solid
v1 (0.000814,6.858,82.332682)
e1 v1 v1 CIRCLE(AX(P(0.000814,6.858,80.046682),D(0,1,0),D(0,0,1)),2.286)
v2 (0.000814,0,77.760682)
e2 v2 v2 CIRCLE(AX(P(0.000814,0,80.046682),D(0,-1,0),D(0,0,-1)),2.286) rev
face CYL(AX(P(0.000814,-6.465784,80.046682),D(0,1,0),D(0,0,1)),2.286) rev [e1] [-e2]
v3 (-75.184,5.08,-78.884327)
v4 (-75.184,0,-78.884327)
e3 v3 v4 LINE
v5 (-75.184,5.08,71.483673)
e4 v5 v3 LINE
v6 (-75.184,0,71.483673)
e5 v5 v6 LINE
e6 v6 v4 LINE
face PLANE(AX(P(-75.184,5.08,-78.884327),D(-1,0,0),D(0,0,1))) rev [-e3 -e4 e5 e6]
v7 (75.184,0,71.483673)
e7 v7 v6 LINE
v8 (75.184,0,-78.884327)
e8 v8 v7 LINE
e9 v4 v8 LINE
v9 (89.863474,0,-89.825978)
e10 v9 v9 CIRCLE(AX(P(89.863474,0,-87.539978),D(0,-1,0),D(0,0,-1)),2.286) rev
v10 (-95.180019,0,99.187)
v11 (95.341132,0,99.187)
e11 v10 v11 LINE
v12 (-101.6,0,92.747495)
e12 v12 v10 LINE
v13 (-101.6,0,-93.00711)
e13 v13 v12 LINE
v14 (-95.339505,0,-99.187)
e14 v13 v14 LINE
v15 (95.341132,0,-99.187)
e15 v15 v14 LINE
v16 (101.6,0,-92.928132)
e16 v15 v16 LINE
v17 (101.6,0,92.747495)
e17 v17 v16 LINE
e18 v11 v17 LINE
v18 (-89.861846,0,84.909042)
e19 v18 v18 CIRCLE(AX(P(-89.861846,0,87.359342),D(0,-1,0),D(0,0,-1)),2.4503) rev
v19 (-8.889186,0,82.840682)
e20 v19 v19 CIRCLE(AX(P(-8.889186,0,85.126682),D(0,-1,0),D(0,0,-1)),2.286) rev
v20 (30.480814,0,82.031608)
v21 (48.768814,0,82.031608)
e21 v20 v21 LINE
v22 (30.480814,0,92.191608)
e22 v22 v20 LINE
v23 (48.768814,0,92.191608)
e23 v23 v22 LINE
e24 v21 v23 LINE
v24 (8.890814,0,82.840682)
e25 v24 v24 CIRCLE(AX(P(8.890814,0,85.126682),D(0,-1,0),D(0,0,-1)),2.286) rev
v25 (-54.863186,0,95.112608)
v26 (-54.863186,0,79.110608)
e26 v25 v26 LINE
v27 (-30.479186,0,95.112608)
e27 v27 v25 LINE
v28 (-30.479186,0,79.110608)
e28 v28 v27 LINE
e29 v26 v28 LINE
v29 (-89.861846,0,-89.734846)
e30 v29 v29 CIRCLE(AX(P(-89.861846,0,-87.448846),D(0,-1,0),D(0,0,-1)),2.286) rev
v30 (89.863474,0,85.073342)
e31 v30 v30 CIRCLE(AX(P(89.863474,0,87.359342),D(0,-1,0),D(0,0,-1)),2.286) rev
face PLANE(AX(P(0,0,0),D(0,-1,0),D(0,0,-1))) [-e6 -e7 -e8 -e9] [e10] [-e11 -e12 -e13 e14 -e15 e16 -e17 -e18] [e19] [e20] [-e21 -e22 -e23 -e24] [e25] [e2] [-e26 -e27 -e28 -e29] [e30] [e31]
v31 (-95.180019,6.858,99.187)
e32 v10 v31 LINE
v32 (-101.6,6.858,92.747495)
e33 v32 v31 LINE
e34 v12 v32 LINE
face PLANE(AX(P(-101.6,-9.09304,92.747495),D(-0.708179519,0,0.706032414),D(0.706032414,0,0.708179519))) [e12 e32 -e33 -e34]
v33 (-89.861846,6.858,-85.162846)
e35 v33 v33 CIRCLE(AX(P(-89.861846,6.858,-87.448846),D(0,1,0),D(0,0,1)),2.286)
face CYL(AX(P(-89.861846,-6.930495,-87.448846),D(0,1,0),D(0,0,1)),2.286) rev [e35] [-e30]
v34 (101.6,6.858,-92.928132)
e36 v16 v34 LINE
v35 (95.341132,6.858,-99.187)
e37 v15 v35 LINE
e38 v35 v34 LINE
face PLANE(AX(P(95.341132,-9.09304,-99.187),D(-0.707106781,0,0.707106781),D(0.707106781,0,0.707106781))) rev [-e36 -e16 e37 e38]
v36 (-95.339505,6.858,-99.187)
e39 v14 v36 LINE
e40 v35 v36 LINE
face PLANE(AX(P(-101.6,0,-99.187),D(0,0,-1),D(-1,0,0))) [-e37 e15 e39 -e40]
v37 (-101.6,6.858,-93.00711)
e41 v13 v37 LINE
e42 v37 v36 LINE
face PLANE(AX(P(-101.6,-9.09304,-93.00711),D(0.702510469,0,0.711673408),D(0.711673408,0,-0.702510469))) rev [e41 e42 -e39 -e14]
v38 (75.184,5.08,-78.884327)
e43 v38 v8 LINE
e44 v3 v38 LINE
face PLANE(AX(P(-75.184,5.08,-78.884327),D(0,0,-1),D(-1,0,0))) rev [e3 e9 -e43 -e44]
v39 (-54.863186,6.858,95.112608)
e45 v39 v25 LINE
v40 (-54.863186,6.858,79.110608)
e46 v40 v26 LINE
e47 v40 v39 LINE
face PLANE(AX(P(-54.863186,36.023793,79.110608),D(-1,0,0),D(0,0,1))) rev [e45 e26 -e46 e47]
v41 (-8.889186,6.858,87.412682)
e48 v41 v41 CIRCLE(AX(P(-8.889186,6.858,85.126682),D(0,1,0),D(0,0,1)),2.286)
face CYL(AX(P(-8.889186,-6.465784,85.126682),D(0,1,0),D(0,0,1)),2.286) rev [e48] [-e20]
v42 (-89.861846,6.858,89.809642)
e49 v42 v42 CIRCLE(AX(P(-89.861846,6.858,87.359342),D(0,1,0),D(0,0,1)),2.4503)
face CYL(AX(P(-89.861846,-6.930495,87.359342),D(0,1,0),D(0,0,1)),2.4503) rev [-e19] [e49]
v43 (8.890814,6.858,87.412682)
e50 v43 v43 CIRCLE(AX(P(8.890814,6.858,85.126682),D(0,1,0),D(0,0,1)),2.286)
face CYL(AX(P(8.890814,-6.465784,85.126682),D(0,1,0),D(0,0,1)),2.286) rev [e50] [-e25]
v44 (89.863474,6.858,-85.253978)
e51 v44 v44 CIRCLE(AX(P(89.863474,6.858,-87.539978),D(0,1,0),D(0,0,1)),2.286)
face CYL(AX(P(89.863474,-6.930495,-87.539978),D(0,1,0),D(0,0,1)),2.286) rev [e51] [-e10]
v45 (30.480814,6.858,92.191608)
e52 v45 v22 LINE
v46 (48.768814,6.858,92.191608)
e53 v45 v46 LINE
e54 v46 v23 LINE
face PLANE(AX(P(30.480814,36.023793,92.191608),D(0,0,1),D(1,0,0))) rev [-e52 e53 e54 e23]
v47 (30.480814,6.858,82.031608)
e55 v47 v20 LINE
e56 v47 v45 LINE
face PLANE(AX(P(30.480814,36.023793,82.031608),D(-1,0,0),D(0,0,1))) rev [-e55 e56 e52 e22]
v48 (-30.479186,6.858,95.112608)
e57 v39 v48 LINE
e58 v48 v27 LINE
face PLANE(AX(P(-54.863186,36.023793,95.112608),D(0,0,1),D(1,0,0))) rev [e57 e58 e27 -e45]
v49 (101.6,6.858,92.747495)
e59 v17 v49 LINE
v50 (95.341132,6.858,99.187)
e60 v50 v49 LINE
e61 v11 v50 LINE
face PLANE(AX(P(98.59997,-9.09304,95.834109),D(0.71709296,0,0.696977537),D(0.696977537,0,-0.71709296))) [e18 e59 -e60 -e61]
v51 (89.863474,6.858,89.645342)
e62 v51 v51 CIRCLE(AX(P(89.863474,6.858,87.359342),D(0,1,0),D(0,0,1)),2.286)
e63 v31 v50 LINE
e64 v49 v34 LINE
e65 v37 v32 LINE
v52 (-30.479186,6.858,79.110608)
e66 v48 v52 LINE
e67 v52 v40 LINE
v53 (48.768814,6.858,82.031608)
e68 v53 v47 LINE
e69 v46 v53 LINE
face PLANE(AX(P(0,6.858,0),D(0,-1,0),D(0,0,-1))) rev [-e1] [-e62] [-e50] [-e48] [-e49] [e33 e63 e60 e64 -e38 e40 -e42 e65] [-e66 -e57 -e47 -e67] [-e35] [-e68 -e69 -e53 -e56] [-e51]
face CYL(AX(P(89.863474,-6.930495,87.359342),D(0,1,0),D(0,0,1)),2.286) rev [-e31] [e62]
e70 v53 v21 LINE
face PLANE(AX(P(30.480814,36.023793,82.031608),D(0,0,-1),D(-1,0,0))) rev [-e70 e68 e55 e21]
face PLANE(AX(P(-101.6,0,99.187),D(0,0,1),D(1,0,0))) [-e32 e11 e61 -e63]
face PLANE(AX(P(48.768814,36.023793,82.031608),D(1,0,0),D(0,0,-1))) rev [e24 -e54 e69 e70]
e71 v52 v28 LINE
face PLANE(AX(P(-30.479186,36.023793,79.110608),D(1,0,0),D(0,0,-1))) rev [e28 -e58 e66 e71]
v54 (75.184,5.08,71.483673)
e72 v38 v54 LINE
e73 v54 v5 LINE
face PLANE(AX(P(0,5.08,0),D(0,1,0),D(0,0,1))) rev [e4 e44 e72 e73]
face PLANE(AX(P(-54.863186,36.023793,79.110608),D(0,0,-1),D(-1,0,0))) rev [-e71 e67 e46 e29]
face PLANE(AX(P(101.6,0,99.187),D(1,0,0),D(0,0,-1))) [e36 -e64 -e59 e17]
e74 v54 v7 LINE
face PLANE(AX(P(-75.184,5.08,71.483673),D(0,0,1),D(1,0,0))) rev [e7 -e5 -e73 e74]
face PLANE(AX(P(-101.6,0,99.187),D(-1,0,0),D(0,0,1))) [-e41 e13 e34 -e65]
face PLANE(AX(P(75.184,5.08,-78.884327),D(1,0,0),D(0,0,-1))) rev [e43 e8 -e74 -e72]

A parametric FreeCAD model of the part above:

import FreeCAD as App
import Part
import Sketcher
Q = App.Units.Quantity

doc = App.newDocument("Part")
body = doc.addObject("PartDesign::Body", "Body")

# Sketch on XZ plane
sketch1 = body.newObject("Sketcher::SketchObject", "Sketch")
sketch1.AttachmentSupport = (doc.getObject("XZ_Plane"), [""])
sketch1.MapMode = "FlatFace"
sketch1.addGeometry(Part.LineSegment(App.Vector(-75.184, -75.184, 0), App.Vector(-75.184, 75.184, 0)), False)
sketch1.addGeometry(Part.LineSegment(App.Vector(-75.184, 75.184, 0), App.Vector(75.184, 75.184, 0)), False)
sketch1.addGeometry(Part.LineSegment(App.Vector(75.184, 75.184, 0), App.Vector(75.184, -75.184, 0)), False)
sketch1.addGeometry(Part.LineSegment(App.Vector(75.184, -75.184, 0), App.Vector(-75.184, -75.184, 0)), False)
sketch1.addConstraint(Sketcher.Constraint("Coincident", 0, 2, 1, 1))
sketch1.addConstraint(Sketcher.Constraint("Coincident", 1, 2, 2, 1))
sketch1.addConstraint(Sketcher.Constraint("Coincident", 2, 2, 3, 1))
sketch1.addConstraint(Sketcher.Constraint("Coincident", 3, 2, 0, 1))
sketch1.addConstraint(Sketcher.Constraint("Vertical", 0))
sketch1.addConstraint(Sketcher.Constraint("Horizontal", 1))
sketch1.addConstraint(Sketcher.Constraint("Vertical", 2))
sketch1.addConstraint(Sketcher.Constraint("Horizontal", 3))
sketch1.addConstraint(Sketcher.Constraint("Symmetric", 0, 2, 2, 2, -1, 1))
sketch1.addConstraint(Sketcher.Constraint("Equal", 3, 0))
sketch1.addConstraint(Sketcher.Constraint("DistanceX", 1, 1, 1, 2, Q("5.92 in")))
pad1 = body.newObject("PartDesign::Pad", "Pad")
pad1.Profile = sketch1
pad1.Length = Q("0.27 in")
pad1.Reversed = True

# Sketch on XZ plane
sketch2 = body.newObject("Sketcher::SketchObject", "Sketch001")
sketch2.AttachmentSupport = (doc.getObject("XZ_Plane"), [""])
sketch2.MapMode = "FlatFace"
sketch2.AttachmentOffset = App.Placement(App.Vector(0, 0, -0.27 * 25.4), App.Rotation())
sketch2.addGeometry(Part.LineSegment(App.Vector(-101.6, -99.187, 0), App.Vector(-101.6, 99.187, 0)), False)
sketch2.addGeometry(Part.LineSegment(App.Vector(-101.6, 99.187, 0), App.Vector(101.6, 99.187, 0)), False)
sketch2.addGeometry(Part.LineSegment(App.Vector(101.6, 99.187, 0), App.Vector(101.6, -99.187, 0)), False)
sketch2.addGeometry(Part.LineSegment(App.Vector(101.6, -99.187, 0), App.Vector(-101.6, -99.187, 0)), False)
sketch2.addConstraint(Sketcher.Constraint("Coincident", 0, 2, 1, 1))
sketch2.addConstraint(Sketcher.Constraint("Coincident", 1, 2, 2, 1))
sketch2.addConstraint(Sketcher.Constraint("Coincident", 2, 2, 3, 1))
sketch2.addConstraint(Sketcher.Constraint("Coincident", 3, 2, 0, 1))
sketch2.addConstraint(Sketcher.Constraint("Vertical", 0))
sketch2.addConstraint(Sketcher.Constraint("Horizontal", 1))
sketch2.addConstraint(Sketcher.Constraint("Vertical", 2))
sketch2.addConstraint(Sketcher.Constraint("Horizontal", 3))
sketch2.addConstraint(Sketcher.Constraint("Symmetric", 0, 2, 2, 2, -1, 1))
sketch2.addConstraint(Sketcher.Constraint("DistanceX", 1, 1, 1, 2, Q("8 in")))
sketch2.addConstraint(Sketcher.Constraint("DistanceY", 0, 1, 0, 2, Q("7.81 in")))
pad2 = body.newObject("PartDesign::Pad", "Pad001")
pad2.Profile = sketch2
pad2.Length = Q("0.27 in")

# Sketch on XZ plane
sketch3 = body.newObject("Sketcher::SketchObject", "Sketch002")
sketch3.AttachmentSupport = (doc.getObject("XZ_Plane"), [""])
sketch3.MapMode = "FlatFace"
sketch3.AttachmentOffset = App.Placement(App.Vector(0, 0, -0.27 * 25.4), App.Rotation())
sketch3.addGeometry(Part.Circle(App.Vector(-8.889186, 85.126682, 0), App.Vector(0, 0, 1), 2.286), False)
sketch3.addGeometry(Part.Circle(App.Vector(8.890814, 85.126682, 0), App.Vector(0, 0, 1), 2.286), False)
sketch3.addConstraint(Sketcher.Constraint("Equal", 0, 1))
sketch3.addConstraint(Sketcher.Constraint("Horizontal", 0, 3, 1, 3))
sketch3.addConstraint(Sketcher.Constraint("Diameter", 0, Q("0.18 in")))
sketch3.addConstraint(Sketcher.Constraint("DistanceX", 0, 3, 1, 3, Q("0.7 in")))
sketch3.addConstraint(Sketcher.Constraint("DistanceY", -1, 1, 0, 3, Q("85.126682 mm")))
sketch3.addConstraint(Sketcher.Constraint("DistanceX", 0, 3, -1, 1, Q("8.889186 mm")))
pocket1 = body.newObject("PartDesign::Pocket", "Pocket")
pocket1.Profile = sketch3
pocket1.Length = Q("0.27 in")
pocket1.Reversed = True

# Sketch on XZ plane
sketch4 = body.newObject("Sketcher::SketchObject", "Sketch003")
sketch4.AttachmentSupport = (doc.getObject("XZ_Plane"), [""])
sketch4.MapMode = "FlatFace"
sketch4.addGeometry(Part.LineSegment(App.Vector(48.768814, 82.031608, 0), App.Vector(48.768814, 92.191608, 0)), False)
sketch4.addGeometry(Part.LineSegment(App.Vector(48.768814, 92.191608, 0), App.Vector(30.480814, 92.191608, 0)), False)
sketch4.addGeometry(Part.LineSegment(App.Vector(30.480814, 92.191608, 0), App.Vector(30.480814, 82.031608, 0)), False)
sketch4.addGeometry(Part.LineSegment(App.Vector(30.480814, 82.031608, 0), App.Vector(48.768814, 82.031608, 0)), False)
sketch4.addGeometry(Part.LineSegment(App.Vector(-30.479186, 79.110608, 0), App.Vector(-30.479186, 95.112608, 0)), False)
sketch4.addGeometry(Part.LineSegment(App.Vector(-30.479186, 95.112608, 0), App.Vector(-54.863186, 95.112608, 0)), False)
sketch4.addGeometry(Part.LineSegment(App.Vector(-54.863186, 95.112608, 0), App.Vector(-54.863186, 79.110608, 0)), False)
sketch4.addGeometry(Part.LineSegment(App.Vector(-54.863186, 79.110608, 0), App.Vector(-30.479186, 79.110608, 0)), False)
sketch4.addConstraint(Sketcher.Constraint("Coincident", 0, 2, 1, 1))
sketch4.addConstraint(Sketcher.Constraint("Coincident", 1, 2, 2, 1))
sketch4.addConstraint(Sketcher.Constraint("Coincident", 2, 2, 3, 1))
sketch4.addConstraint(Sketcher.Constraint("Coincident", 3, 2, 0, 1))
sketch4.addConstraint(Sketcher.Constraint("Coincident", 4, 2, 5, 1))
sketch4.addConstraint(Sketcher.Constraint("Coincident", 5, 2, 6, 1))
sketch4.addConstraint(Sketcher.Constraint("Coincident", 6, 2, 7, 1))
sketch4.addConstraint(Sketcher.Constraint("Coincident", 7, 2, 4, 1))
sketch4.addConstraint(Sketcher.Constraint("Vertical", 0))
sketch4.addConstraint(Sketcher.Constraint("Horizontal", 1))
sketch4.addConstraint(Sketcher.Constraint("Vertical", 2))
sketch4.addConstraint(Sketcher.Constraint("Horizontal", 3))
sketch4.addConstraint(Sketcher.Constraint("Vertical", 4))
sketch4.addConstraint(Sketcher.Constraint("Horizontal", 5))
sketch4.addConstraint(Sketcher.Constraint("Vertical", 6))
sketch4.addConstraint(Sketcher.Constraint("Horizontal", 7))
sketch4.addConstraint(Sketcher.Constraint("DistanceY", 0, 1, 0, 2, Q("0.4 in")))
sketch4.addConstraint(Sketcher.Constraint("DistanceX", 1, 2, 1, 1, Q("0.72 in")))
sketch4.addConstraint(Sketcher.Constraint("DistanceX", 5, 2, 5, 1, Q("0.96 in")))
sketch4.addConstraint(Sketcher.Constraint("DistanceY", 4, 1, 4, 2, Q("0.63 in")))
sketch4.addConstraint(Sketcher.Constraint("DistanceX", 4, 2, 1, 2, Q("2.4 in")))
sketch4.addConstraint(Sketcher.Constraint("DistanceY", 1, 2, 4, 2, Q("0.115 in")))
sketch4.addConstraint(Sketcher.Constraint("DistanceX", -1, 1, 0, 2, Q("48.768814 mm")))
sketch4.addConstraint(Sketcher.Constraint("DistanceY", -1, 1, 0, 2, Q("92.191608 mm")))
pocket2 = body.newObject("PartDesign::Pocket", "Pocket001")
pocket2.Profile = sketch4
pocket2.Length = Q("0.27 in")

# Sketch on XZ plane
sketch5 = body.newObject("Sketcher::SketchObject", "Sketch004")
sketch5.AttachmentSupport = (doc.getObject("XZ_Plane"), [""])
sketch5.MapMode = "FlatFace"
sketch5.AttachmentOffset = App.Placement(App.Vector(0, 0, -0.27 * 25.4), App.Rotation())
sketch5.addGeometry(Part.Circle(App.Vector(-89.861846, 87.359342, 0), App.Vector(0, 0, 1), 2.4503), False)
sketch5.addGeometry(Part.Circle(App.Vector(89.863474, 87.359342, 0), App.Vector(0, 0, 1), 2.286), False)
sketch5.addGeometry(Part.Circle(App.Vector(89.863474, -87.539978, 0), App.Vector(0, 0, 1), 2.286), False)
sketch5.addGeometry(Part.Circle(App.Vector(-89.861846, -87.448846, 0), App.Vector(0, 0, 1), 2.286), False)
sketch5.addConstraint(Sketcher.Constraint("Equal", 1, 2))
sketch5.addConstraint(Sketcher.Constraint("Equal", 2, 3))
sketch5.addConstraint(Sketcher.Constraint("Horizontal", 0, 3, 1, 3))
sketch5.addConstraint(Sketcher.Constraint("Vertical", 1, 3, 2, 3))
sketch5.addConstraint(Sketcher.Constraint("Vertical", 0, 3, 3, 3))
sketch5.addConstraint(Sketcher.Constraint("Diameter", 1, Q("0.18 in")))
sketch5.addConstraint(Sketcher.Constraint("Diameter", 0, Q("4.9006 mm")))
sketch5.addConstraint(Sketcher.Constraint("DistanceX", 0, 3, 1, 3, Q("7.0758 in")))
sketch5.addConstraint(Sketcher.Constraint("DistanceY", 2, 3, 1, 3, Q("6.8858 in")))
sketch5.addConstraint(Sketcher.Constraint("DistanceY", -1, 1, 0, 3, Q("87.359342 mm")))
sketch5.addConstraint(Sketcher.Constraint("DistanceX", 0, 3, -1, 1, Q("89.861846 mm")))
sketch5.addConstraint(Sketcher.Constraint("DistanceY", 3, 3, -1, 1, Q("87.448846 mm")))
pocket3 = body.newObject("PartDesign::Pocket", "Pocket002")
pocket3.Profile = sketch5
pocket3.Length = Q("0.27 in")
pocket3.Reversed = True

# Sketch on XZ plane
sketch6 = body.newObject("Sketcher::SketchObject", "Sketch005")
sketch6.AttachmentSupport = (doc.getObject("XZ_Plane"), [""])
sketch6.MapMode = "FlatFace"
sketch6.AttachmentOffset = App.Placement(App.Vector(0, 0, -0.27 * 25.4), App.Rotation())
sketch6.addGeometry(Part.LineSegment(App.Vector(101.6, 99.187, 0), App.Vector(101.6, 92.747495, 0)), False)
sketch6.addGeometry(Part.LineSegment(App.Vector(101.6, 92.747495, 0), App.Vector(95.341132, 99.187, 0)), False)
sketch6.addGeometry(Part.LineSegment(App.Vector(95.341132, 99.187, 0), App.Vector(101.6, 99.187, 0)), False)
sketch6.addGeometry(Part.LineSegment(App.Vector(-95.339505, -99.187, 0), App.Vector(-101.6, -99.187, 0)), False)
sketch6.addGeometry(Part.LineSegment(App.Vector(-101.6, -99.187, 0), App.Vector(-101.6, -93.00711, 0)), False)
sketch6.addGeometry(Part.LineSegment(App.Vector(-101.6, -93.00711, 0), App.Vector(-95.339505, -99.187, 0)), False)
sketch6.addGeometry(Part.LineSegment(App.Vector(101.6, -92.928132, 0), App.Vector(101.6, -99.187, 0)), False)
sketch6.addGeometry(Part.LineSegment(App.Vector(101.6, -99.187, 0), App.Vector(95.341132, -99.187, 0)), False)
sketch6.addGeometry(Part.LineSegment(App.Vector(95.341132, -99.187, 0), App.Vector(101.6, -92.928132, 0)), False)
sketch6.addGeometry(Part.LineSegment(App.Vector(-95.180019, 99.187, 0), App.Vector(-101.6, 92.747495, 0)), False)
sketch6.addGeometry(Part.LineSegment(App.Vector(-101.6, 92.747495, 0), App.Vector(-101.6, 99.187, 0)), False)
sketch6.addGeometry(Part.LineSegment(App.Vector(-101.6, 99.187, 0), App.Vector(-95.180019, 99.187, 0)), False)
sketch6.addConstraint(Sketcher.Constraint("Coincident", 0, 2, 1, 1))
sketch6.addConstraint(Sketcher.Constraint("Coincident", 1, 2, 2, 1))
sketch6.addConstraint(Sketcher.Constraint("Coincident", 2, 2, 0, 1))
sketch6.addConstraint(Sketcher.Constraint("Coincident", 3, 2, 4, 1))
sketch6.addConstraint(Sketcher.Constraint("Coincident", 4, 2, 5, 1))
sketch6.addConstraint(Sketcher.Constraint("Coincident", 5, 2, 3, 1))
sketch6.addConstraint(Sketcher.Constraint("Coincident", 6, 2, 7, 1))
sketch6.addConstraint(Sketcher.Constraint("Coincident", 7, 2, 8, 1))
sketch6.addConstraint(Sketcher.Constraint("Coincident", 8, 2, 6, 1))
sketch6.addConstraint(Sketcher.Constraint("Coincident", 9, 2, 10, 1))
sketch6.addConstraint(Sketcher.Constraint("Coincident", 10, 2, 11, 1))
sketch6.addConstraint(Sketcher.Constraint("Coincident", 11, 2, 9, 1))
sketch6.addConstraint(Sketcher.Constraint("Vertical", 0))
sketch6.addConstraint(Sketcher.Constraint("Horizontal", 2))
sketch6.addConstraint(Sketcher.Constraint("Horizontal", 3))
sketch6.addConstraint(Sketcher.Constraint("Vertical", 4))
sketch6.addConstraint(Sketcher.Constraint("Vertical", 6))
sketch6.addConstraint(Sketcher.Constraint("Horizontal", 7))
sketch6.addConstraint(Sketcher.Constraint("Vertical", 10))
sketch6.addConstraint(Sketcher.Constraint("Horizontal", 11))
sketch6.addConstraint(Sketcher.Constraint("Symmetric", 2, 2, 3, 2, -1, 1))
sketch6.addConstraint(Sketcher.Constraint("Symmetric", 6, 2, 10, 2, -1, 1))
sketch6.addConstraint(Sketcher.Constraint("Symmetric", 3, 2, 6, 2, -2))
sketch6.addConstraint(Sketcher.Constraint("Horizontal", 0, 2, 9, 2))
sketch6.addConstraint(Sketcher.Constraint("Vertical", 1, 2, 7, 2))
sketch6.addConstraint(Sketcher.Constraint("Equal", 7, 6))
sketch6.addConstraint(Sketcher.Constraint("DistanceX", -1, 1, 0, 2, Q("4 in")))
sketch6.addConstraint(Sketcher.Constraint("DistanceY", 3, 2, 1, 2, Q("7.81 in")))
sketch6.addConstraint(Sketcher.Constraint("DistanceX", 11, 1, 11, 2, Q("6.419981 mm")))
sketch6.addConstraint(Sketcher.Constraint("DistanceY", 4, 1, 4, 2, Q("6.17989 mm")))
sketch6.addConstraint(Sketcher.Constraint("Distance", 9, Q("9.09304 mm")))
sketch6.addConstraint(Sketcher.Constraint("DistanceX", 2, 1, 2, 2, Q("6.258868 mm")))
sketch6.addConstraint(Sketcher.Constraint("DistanceX", 3, 2, 3, 1, Q("6.260495 mm")))
pocket4 = body.newObject("PartDesign::Pocket", "Pocket003")
pocket4.Profile = sketch6
pocket4.Length = Q("0.27 in")
pocket4.Reversed = True

# Sketch on XZ plane
sketch7 = body.newObject("Sketcher::SketchObject", "Sketch006")
sketch7.AttachmentSupport = (doc.getObject("XZ_Plane"), [""])
sketch7.MapMode = "FlatFace"
sketch7.addGeometry(Part.LineSegment(App.Vector(75.184, -78.884327, 0), App.Vector(75.184, 71.483673, 0)), False)
sketch7.addGeometry(Part.LineSegment(App.Vector(75.184, 71.483673, 0), App.Vector(-75.184, 71.483673, 0)), False)
sketch7.addGeometry(Part.LineSegment(App.Vector(-75.184, 71.483673, 0), App.Vector(-75.184, -78.884327, 0)), False)
sketch7.addGeometry(Part.LineSegment(App.Vector(-75.184, -78.884327, 0), App.Vector(75.184, -78.884327, 0)), False)
sketch7.addConstraint(Sketcher.Constraint("Coincident", 0, 2, 1, 1))
sketch7.addConstraint(Sketcher.Constraint("Coincident", 1, 2, 2, 1))
sketch7.addConstraint(Sketcher.Constraint("Coincident", 2, 2, 3, 1))
sketch7.addConstraint(Sketcher.Constraint("Coincident", 3, 2, 0, 1))
sketch7.addConstraint(Sketcher.Constraint("Vertical", 0))
sketch7.addConstraint(Sketcher.Constraint("Horizontal", 1))
sketch7.addConstraint(Sketcher.Constraint("Vertical", 2))
sketch7.addConstraint(Sketcher.Constraint("Horizontal", 3))
sketch7.addConstraint(Sketcher.Constraint("Equal", 3, 0))
sketch7.addConstraint(Sketcher.Constraint("DistanceX", 1, 2, 1, 1, Q("5.92 in")))
sketch7.addConstraint(Sketcher.Constraint("DistanceX", -1, 1, 0, 2, Q("2.96 in")))
sketch7.addConstraint(Sketcher.Constraint("DistanceY", -1, 1, 0, 2, Q("71.483673 mm")))
pocket5 = body.newObject("PartDesign::Pocket", "Pocket004")
pocket5.Profile = sketch7
pocket5.Length = Q("0.2 in")

# Sketch on XZ plane
sketch8 = body.newObject("Sketcher::SketchObject", "Sketch007")
sketch8.AttachmentSupport = (doc.getObject("XZ_Plane"), [""])
sketch8.MapMode = "FlatFace"
sketch8.AttachmentOffset = App.Placement(App.Vector(0, 0, -0.27 * 25.4), App.Rotation())
sketch8.addGeometry(Part.Circle(App.Vector(0.000814, 80.046682, 0), App.Vector(0, 0, 1), 2.286), False)
sketch8.addConstraint(Sketcher.Constraint("Diameter", 0, Q("0.18 in")))
sketch8.addConstraint(Sketcher.Constraint("DistanceY", -1, 1, 0, 3, Q("80.046682 mm")))
sketch8.addConstraint(Sketcher.Constraint("DistanceX", -1, 1, 0, 3, Q("0.000814 mm")))
pocket6 = body.newObject("PartDesign::Pocket", "Pocket005")
pocket6.Profile = sketch8
pocket6.Length = Q("0.27 in")
pocket6.Reversed = True

doc.recompute()
